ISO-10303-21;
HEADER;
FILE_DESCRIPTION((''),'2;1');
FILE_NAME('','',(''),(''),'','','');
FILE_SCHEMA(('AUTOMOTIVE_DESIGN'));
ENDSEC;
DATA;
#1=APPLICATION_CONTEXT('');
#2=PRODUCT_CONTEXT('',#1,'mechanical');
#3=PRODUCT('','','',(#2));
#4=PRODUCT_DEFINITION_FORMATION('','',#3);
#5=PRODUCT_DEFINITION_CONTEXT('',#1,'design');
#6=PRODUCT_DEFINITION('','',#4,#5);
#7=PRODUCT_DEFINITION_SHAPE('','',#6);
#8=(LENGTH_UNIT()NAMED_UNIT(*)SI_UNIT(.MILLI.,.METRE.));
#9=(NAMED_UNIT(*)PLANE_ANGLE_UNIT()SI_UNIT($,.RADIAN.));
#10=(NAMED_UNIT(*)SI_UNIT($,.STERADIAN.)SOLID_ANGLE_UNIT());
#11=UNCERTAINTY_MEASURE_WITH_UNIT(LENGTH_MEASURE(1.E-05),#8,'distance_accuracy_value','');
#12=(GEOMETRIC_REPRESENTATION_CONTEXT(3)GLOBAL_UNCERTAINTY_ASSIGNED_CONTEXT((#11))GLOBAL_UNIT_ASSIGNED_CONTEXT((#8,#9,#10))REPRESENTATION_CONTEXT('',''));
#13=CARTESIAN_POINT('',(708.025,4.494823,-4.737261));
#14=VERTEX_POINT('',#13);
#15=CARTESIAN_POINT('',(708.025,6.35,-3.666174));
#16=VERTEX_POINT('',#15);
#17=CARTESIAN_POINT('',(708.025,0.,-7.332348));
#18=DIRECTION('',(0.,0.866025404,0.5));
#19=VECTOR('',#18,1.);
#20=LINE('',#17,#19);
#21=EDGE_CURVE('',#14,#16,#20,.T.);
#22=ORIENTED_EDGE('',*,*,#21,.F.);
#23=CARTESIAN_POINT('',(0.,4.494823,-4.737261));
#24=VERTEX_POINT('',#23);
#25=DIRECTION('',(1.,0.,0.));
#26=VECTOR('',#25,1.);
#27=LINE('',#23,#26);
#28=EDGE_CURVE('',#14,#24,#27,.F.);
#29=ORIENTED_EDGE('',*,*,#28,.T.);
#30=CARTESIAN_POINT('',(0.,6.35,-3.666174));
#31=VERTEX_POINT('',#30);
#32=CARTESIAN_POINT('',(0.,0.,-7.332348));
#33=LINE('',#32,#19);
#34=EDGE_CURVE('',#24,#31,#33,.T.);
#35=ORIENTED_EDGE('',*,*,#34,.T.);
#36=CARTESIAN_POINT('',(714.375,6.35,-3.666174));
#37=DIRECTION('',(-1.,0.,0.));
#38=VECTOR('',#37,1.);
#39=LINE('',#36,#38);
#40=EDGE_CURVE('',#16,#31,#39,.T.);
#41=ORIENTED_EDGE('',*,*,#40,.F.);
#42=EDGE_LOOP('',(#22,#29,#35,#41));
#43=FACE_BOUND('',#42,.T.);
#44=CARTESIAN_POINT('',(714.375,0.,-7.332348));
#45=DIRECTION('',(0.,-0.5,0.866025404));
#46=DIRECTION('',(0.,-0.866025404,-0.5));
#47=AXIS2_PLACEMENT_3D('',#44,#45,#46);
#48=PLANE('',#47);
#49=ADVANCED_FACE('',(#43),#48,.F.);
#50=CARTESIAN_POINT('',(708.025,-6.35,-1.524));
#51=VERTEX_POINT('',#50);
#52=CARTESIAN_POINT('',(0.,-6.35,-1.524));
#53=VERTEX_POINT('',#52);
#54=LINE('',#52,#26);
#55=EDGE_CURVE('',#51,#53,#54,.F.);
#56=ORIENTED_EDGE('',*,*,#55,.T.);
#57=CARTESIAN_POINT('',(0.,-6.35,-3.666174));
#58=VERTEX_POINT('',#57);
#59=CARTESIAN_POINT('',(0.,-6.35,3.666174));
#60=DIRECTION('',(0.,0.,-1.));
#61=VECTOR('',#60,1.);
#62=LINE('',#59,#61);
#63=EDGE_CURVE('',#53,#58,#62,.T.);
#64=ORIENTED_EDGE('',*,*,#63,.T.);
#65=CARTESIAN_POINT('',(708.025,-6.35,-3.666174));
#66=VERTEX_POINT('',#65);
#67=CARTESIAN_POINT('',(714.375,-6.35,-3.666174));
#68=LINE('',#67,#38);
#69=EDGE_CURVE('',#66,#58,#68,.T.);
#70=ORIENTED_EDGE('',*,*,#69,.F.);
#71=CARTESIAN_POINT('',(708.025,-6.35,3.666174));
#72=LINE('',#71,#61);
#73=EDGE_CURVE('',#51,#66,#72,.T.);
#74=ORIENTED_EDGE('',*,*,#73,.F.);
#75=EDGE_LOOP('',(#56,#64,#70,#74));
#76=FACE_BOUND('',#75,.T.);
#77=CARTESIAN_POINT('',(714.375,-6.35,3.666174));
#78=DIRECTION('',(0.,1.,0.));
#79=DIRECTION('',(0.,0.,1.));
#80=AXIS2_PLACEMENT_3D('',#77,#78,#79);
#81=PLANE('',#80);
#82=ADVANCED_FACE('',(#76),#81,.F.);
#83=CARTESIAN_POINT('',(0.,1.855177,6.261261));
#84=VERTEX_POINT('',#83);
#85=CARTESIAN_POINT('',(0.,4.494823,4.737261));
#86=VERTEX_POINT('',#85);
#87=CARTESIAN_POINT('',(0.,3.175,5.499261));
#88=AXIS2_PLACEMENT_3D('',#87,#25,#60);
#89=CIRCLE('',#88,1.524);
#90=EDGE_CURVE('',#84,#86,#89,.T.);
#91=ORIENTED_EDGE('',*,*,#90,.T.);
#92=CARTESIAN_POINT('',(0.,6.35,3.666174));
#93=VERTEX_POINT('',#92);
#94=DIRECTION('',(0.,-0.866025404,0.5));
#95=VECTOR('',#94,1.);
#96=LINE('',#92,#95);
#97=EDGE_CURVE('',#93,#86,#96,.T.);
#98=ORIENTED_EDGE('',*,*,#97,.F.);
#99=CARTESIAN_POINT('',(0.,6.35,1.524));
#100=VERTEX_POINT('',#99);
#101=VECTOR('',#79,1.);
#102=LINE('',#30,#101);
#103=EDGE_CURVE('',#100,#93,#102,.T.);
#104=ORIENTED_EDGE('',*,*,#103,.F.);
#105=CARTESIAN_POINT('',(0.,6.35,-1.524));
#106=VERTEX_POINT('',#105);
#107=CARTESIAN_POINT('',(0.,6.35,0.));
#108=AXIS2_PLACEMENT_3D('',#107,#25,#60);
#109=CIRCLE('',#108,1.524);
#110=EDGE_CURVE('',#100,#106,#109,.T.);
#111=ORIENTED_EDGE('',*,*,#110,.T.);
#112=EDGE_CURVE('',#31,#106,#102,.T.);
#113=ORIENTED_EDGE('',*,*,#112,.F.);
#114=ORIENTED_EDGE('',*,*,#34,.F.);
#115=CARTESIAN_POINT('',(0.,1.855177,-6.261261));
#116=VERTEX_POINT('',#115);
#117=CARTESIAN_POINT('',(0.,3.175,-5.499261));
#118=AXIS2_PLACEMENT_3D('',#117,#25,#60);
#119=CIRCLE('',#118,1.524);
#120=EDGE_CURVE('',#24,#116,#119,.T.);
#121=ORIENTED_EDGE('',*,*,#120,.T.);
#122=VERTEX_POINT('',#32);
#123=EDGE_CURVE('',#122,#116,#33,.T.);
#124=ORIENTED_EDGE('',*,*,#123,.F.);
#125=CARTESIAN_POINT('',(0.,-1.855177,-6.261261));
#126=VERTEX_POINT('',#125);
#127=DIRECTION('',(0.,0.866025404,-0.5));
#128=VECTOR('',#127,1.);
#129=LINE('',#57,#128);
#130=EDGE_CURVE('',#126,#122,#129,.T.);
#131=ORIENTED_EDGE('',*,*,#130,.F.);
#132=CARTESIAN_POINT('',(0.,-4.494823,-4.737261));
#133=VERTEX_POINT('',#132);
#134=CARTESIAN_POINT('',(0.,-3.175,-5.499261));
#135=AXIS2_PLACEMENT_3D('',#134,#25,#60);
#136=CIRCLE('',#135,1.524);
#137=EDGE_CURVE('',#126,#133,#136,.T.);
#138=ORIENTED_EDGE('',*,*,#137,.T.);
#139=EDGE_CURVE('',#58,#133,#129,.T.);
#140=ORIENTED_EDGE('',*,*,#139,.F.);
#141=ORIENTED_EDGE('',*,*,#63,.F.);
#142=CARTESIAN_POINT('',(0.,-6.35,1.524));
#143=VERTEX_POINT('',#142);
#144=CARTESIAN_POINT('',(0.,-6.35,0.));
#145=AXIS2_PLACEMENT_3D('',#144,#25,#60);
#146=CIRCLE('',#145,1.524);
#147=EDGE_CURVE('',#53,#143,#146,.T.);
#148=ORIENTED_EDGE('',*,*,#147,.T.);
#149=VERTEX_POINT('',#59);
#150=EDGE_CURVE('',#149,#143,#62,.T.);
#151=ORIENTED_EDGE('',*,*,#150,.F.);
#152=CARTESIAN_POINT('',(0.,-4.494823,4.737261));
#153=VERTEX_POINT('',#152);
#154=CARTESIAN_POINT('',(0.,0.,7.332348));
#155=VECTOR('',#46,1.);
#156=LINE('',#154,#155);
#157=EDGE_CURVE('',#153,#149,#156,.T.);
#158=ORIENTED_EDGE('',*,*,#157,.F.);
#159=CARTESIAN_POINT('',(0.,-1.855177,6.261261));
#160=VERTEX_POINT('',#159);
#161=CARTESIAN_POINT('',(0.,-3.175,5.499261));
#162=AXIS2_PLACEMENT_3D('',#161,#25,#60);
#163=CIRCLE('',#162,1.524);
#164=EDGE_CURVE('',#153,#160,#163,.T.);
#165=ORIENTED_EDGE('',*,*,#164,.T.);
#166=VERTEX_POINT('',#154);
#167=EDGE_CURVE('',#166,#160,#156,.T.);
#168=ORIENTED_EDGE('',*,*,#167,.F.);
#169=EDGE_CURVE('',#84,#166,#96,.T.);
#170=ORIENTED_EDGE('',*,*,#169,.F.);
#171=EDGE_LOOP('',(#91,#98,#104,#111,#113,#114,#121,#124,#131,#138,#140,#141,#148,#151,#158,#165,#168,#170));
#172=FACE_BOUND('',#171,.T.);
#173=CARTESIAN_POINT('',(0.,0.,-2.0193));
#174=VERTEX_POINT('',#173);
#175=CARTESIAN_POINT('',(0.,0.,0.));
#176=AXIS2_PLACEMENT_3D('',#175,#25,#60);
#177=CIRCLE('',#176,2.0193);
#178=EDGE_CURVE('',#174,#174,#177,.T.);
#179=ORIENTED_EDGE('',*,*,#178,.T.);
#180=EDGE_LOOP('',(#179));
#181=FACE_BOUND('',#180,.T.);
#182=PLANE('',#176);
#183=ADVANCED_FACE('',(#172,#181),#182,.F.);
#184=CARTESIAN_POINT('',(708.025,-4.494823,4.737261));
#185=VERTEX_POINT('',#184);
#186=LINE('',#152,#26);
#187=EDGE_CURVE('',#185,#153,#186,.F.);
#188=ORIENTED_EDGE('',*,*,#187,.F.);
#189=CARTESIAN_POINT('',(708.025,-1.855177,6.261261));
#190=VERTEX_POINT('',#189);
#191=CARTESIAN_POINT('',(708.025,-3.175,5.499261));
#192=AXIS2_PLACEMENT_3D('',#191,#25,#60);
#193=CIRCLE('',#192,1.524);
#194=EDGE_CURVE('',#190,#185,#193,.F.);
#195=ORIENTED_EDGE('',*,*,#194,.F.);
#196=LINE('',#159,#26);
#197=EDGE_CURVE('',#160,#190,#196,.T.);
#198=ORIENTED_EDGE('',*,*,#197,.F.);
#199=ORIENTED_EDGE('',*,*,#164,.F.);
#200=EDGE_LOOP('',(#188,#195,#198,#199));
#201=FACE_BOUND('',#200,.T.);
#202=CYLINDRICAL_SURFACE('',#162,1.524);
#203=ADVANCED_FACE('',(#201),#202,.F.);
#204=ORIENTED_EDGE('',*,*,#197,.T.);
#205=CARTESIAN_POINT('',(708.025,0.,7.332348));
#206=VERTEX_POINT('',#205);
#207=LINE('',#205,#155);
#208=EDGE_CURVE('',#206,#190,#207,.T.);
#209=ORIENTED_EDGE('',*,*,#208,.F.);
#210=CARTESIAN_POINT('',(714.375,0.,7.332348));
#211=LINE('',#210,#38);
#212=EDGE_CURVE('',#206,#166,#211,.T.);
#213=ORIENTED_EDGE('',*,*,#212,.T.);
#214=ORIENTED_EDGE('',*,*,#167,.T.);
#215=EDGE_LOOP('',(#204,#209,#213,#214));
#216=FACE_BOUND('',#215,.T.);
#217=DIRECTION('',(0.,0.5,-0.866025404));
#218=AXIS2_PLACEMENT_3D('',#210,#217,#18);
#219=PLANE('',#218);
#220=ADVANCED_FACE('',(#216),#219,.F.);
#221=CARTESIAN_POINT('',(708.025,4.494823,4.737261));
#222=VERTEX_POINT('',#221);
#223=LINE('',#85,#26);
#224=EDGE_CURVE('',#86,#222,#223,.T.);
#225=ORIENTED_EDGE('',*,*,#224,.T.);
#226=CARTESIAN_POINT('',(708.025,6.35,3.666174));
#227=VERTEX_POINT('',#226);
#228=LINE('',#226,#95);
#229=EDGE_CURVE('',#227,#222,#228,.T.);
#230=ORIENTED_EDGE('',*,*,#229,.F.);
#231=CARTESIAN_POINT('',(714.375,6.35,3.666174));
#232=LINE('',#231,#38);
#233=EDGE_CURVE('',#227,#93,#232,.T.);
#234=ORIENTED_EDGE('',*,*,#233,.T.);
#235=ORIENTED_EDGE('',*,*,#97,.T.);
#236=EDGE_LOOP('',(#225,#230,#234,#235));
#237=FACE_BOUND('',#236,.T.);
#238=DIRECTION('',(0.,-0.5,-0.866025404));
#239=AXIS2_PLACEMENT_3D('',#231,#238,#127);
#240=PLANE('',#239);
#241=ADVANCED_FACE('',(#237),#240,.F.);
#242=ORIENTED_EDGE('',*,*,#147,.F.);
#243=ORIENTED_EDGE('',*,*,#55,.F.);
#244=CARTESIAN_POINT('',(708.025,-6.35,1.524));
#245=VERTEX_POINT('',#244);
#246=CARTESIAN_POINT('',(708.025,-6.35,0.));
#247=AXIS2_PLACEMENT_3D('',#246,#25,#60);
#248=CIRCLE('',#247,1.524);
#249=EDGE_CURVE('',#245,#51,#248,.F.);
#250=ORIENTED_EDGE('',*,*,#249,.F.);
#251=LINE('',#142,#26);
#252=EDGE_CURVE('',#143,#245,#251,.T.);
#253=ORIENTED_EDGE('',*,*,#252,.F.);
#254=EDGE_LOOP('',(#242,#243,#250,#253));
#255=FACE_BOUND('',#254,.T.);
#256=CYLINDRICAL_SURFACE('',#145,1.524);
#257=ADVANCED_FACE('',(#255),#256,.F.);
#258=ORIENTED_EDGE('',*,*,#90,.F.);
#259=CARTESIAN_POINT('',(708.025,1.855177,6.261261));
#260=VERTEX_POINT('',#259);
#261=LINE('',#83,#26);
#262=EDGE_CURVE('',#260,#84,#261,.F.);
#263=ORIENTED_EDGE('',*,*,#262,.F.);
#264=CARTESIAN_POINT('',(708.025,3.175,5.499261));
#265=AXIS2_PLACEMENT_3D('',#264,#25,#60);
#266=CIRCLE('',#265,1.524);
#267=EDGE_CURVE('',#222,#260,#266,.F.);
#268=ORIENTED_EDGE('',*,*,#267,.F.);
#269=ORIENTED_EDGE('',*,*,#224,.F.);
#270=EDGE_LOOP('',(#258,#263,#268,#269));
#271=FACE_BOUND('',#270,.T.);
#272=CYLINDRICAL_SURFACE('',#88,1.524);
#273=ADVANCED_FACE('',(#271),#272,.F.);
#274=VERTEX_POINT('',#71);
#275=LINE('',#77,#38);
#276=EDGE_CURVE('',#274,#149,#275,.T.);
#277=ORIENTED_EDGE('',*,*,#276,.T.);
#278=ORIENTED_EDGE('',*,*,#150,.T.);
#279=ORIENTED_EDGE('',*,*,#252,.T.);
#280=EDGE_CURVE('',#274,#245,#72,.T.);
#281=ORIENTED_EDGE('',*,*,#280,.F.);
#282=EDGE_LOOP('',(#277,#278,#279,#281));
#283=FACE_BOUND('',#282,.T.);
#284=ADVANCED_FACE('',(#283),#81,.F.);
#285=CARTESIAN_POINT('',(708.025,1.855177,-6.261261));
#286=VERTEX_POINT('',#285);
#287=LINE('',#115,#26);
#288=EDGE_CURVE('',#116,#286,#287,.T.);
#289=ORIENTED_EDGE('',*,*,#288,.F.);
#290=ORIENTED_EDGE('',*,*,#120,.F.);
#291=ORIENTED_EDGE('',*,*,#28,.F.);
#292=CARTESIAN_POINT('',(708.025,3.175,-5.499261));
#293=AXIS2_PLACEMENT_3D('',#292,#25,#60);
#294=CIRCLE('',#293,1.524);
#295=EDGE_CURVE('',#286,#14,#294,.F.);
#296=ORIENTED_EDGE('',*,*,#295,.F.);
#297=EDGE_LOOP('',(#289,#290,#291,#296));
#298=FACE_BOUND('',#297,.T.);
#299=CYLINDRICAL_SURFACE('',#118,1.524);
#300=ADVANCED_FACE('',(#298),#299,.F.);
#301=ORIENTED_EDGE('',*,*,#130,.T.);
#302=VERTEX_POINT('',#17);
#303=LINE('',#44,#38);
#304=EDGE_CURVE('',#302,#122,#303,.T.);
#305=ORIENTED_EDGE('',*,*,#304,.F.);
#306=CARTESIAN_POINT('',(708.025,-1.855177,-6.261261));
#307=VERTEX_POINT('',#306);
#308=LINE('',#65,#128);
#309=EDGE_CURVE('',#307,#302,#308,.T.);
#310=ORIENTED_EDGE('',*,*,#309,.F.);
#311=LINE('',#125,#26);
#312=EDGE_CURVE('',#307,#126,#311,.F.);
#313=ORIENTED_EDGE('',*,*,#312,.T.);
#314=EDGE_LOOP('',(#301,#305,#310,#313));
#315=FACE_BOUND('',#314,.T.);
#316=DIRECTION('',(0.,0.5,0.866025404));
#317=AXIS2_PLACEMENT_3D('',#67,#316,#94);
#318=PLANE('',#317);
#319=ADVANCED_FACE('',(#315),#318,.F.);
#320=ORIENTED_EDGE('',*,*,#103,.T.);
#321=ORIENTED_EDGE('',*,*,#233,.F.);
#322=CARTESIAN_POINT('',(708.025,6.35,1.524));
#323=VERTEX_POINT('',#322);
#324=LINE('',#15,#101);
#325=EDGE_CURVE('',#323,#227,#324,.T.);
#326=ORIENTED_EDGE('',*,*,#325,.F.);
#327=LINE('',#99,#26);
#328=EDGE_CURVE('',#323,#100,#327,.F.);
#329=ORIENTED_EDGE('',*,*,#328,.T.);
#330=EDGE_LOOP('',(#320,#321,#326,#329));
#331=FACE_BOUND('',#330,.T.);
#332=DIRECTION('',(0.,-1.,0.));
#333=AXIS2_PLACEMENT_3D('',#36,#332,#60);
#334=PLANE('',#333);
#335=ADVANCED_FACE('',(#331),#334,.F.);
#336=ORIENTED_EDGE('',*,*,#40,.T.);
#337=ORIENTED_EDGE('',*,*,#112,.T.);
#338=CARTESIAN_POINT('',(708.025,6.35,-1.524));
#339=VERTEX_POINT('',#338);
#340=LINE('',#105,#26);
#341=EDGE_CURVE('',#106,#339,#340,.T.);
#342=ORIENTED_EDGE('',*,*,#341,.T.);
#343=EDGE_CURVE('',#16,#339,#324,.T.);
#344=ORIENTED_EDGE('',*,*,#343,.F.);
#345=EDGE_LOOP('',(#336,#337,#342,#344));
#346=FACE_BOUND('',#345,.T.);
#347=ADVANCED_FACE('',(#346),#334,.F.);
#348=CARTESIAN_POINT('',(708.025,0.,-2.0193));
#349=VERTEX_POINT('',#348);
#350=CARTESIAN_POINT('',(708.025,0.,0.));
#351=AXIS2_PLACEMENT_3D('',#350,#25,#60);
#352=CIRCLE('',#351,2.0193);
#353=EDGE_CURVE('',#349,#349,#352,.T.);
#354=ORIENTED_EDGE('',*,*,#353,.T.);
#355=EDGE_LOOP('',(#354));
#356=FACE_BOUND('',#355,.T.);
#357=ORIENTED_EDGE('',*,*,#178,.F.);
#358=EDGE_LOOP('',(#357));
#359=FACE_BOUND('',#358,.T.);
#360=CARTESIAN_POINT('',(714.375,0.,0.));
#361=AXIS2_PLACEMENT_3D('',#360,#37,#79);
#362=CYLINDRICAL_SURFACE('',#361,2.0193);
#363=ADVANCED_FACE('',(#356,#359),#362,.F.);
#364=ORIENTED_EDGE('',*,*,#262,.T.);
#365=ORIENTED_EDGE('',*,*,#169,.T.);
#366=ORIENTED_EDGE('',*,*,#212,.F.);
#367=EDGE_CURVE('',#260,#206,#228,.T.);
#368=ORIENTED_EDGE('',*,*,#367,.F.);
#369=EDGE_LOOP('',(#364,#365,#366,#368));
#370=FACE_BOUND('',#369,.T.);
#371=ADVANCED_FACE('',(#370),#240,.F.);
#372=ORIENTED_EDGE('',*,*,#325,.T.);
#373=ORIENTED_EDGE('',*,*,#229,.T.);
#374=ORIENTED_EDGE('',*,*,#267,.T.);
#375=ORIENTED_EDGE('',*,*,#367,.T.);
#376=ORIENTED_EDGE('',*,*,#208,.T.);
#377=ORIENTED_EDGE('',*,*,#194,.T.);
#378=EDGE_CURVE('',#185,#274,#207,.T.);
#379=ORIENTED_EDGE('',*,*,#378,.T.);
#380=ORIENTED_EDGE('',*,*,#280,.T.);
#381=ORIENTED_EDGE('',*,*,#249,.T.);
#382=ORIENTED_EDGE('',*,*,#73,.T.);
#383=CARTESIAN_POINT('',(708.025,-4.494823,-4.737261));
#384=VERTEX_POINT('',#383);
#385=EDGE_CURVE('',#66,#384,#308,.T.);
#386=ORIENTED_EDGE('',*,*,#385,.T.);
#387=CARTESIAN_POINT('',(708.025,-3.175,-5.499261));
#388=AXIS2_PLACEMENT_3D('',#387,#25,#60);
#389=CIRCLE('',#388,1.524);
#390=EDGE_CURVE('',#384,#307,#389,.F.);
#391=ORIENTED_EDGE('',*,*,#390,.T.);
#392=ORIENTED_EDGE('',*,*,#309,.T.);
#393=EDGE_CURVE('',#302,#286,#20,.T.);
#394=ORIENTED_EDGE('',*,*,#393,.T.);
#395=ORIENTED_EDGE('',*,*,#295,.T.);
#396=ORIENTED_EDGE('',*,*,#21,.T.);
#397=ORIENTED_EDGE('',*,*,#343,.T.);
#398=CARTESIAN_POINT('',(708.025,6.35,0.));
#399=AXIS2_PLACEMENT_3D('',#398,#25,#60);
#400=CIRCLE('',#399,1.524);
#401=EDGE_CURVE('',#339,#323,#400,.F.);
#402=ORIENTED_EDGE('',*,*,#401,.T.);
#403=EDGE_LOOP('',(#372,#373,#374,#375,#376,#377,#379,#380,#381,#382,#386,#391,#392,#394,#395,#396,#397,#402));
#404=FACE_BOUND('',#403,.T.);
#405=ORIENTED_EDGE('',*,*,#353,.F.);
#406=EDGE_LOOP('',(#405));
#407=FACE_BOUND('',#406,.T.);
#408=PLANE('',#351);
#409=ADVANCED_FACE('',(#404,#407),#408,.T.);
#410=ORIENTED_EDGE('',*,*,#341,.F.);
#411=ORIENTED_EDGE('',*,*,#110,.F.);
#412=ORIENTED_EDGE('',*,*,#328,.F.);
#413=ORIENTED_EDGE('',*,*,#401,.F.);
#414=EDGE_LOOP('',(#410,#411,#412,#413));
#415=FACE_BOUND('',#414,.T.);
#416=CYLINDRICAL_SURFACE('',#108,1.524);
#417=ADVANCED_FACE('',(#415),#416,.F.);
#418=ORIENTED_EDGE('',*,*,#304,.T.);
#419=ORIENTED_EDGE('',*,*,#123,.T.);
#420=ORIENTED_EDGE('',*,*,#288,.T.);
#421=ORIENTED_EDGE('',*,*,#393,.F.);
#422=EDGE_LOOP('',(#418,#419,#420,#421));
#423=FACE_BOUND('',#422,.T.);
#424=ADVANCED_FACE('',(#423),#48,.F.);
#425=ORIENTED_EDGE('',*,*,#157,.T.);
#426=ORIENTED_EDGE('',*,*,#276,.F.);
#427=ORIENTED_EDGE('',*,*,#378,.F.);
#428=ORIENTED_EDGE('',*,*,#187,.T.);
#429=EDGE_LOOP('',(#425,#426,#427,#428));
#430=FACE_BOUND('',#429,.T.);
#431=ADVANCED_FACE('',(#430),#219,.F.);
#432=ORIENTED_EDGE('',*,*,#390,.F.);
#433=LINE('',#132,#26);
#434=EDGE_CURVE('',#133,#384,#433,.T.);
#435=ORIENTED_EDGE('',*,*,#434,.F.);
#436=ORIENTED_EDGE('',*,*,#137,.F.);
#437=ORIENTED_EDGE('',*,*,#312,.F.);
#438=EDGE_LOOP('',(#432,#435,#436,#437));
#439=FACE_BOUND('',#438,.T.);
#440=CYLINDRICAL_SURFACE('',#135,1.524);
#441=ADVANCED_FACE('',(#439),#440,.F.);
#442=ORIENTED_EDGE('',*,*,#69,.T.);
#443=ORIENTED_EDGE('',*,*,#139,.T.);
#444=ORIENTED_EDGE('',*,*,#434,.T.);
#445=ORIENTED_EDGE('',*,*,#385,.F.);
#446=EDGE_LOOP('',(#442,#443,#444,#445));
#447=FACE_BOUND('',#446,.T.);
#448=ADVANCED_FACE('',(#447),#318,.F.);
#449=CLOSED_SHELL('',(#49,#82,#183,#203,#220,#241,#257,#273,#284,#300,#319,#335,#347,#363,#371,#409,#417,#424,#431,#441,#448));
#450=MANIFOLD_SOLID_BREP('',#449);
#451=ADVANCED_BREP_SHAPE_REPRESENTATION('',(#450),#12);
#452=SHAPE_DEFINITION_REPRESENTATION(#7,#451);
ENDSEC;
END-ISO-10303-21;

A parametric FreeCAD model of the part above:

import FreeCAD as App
import Part
import Sketcher
Q = App.Units.Quantity

doc = App.newDocument("Part")
body = doc.addObject("PartDesign::Body", "Body")

sketch1 = doc.addObject("Sketcher::SketchObject", "Sketch")
body.addObject(sketch1)
sketch1.AttachmentSupport = (doc.YZ_Plane, [""])
sketch1.MapMode = "FlatFace"
sketch1.addGeometry([
    Part.LineSegment(App.Vector(0, -7.3, 0), App.Vector(6.3, -3.7, 0)),
    Part.LineSegment(App.Vector(6.3, -3.7, 0), App.Vector(6.3, 3.7, 0)),
    Part.LineSegment(App.Vector(6.3, 3.7, 0), App.Vector(0, 7.3, 0)),
    Part.LineSegment(App.Vector(0, 7.3, 0), App.Vector(-6.3, 3.7, 0)),
    Part.LineSegment(App.Vector(-6.3, 3.7, 0), App.Vector(-6.3, -3.7, 0)),
    Part.LineSegment(App.Vector(-6.3, -3.7, 0), App.Vector(0, -7.3, 0)),
    Part.Circle(App.Vector(0, 0, 0), App.Vector(0, 0, 1), 2),
], False)
sketch1.addConstraint([
    Sketcher.Constraint("Coincident", 0, 2, 1, 1),
    Sketcher.Constraint("Coincident", 1, 2, 2, 1),
    Sketcher.Constraint("Coincident", 2, 2, 3, 1),
    Sketcher.Constraint("Coincident", 3, 2, 4, 1),
    Sketcher.Constraint("Coincident", 4, 2, 5, 1),
    Sketcher.Constraint("Coincident", 5, 2, 0, 1),
    Sketcher.Constraint("Vertical", 1),
    Sketcher.Constraint("Vertical", 4),
    Sketcher.Constraint("Coincident", 6, 3, -1, 1),
    Sketcher.Constraint("Symmetric", 0, 2, 3, 2, -1, 1),
    Sketcher.Constraint("Symmetric", 2, 2, 5, 2, -1, 1),
    Sketcher.Constraint("PointOnObject", 2, 2, -2),
    Sketcher.Constraint("Parallel", 2, 5),
    Sketcher.Constraint("Horizontal", 1, 2, 3, 2),
    Sketcher.Constraint("Diameter", 6, Q("0.159 in")),
    Sketcher.Constraint("Angle", 0, Q("30 deg")),
    Sketcher.Constraint("DistanceX", 3, 2, 1, 2, Q("0.5 in")),
    Sketcher.Constraint("DistanceY", 1, 1, 1, 2, 7.332348),
])
pad1 = doc.addObject("PartDesign::Pad", "Pad")
body.addObject(pad1)
pad1.Profile = sketch1
pad1.Length = Q("28.125 in")

sketch2 = doc.addObject("Sketcher::SketchObject", "Sketch001")
body.addObject(sketch2)
sketch2.AttachmentSupport = (doc.YZ_Plane, [""])
sketch2.MapMode = "FlatFace"
sketch2.AttachmentOffset = App.Placement(App.Vector(0, 0, 28.125 * 25.4), App.Rotation())
sketch2.addGeometry([
    Part.Circle(App.Vector(6.3, 0, 0), App.Vector(0, 0, 1), 1.5),
    Part.Circle(App.Vector(3.2, -5.5, 0), App.Vector(0, 0, 1), 1.5),
    Part.Circle(App.Vector(-3.2, -5.5, 0), App.Vector(0, 0, 1), 1.5),
    Part.Circle(App.Vector(-6.3, 0, 0), App.Vector(0, 0, 1), 1.5),
    Part.Circle(App.Vector(-3.2, 5.5, 0), App.Vector(0, 0, 1), 1.5),
    Part.Circle(App.Vector(3.2, 5.5, 0), App.Vector(0, 0, 1), 1.5),
], False)
sketch2.addConstraint([
    Sketcher.Constraint("Equal", 0, 1),
    Sketcher.Constraint("Equal", 1, 2),
    Sketcher.Constraint("Equal", 2, 3),
    Sketcher.Constraint("Equal", 3, 4),
    Sketcher.Constraint("Equal", 4, 5),
    Sketcher.Constraint("Symmetric", 0, 3, 3, 3, -1, 1),
    Sketcher.Constraint("Symmetric", 1, 3, 4, 3, -1, 1),
    Sketcher.Constraint("Symmetric", 2, 3, 5, 3, -1, 1),
    Sketcher.Constraint("Symmetric", 1, 3, 2, 3, -2),
    Sketcher.Constraint("PointOnObject", 0, 3, -1),
    Sketcher.Constraint("Diameter", 0, Q("0.12 in")),
    Sketcher.Constraint("DistanceX", 3, 3, 0, 3, Q("0.5 in")),
    Sketcher.Constraint("DistanceX", 2, 3, 1, 3, Q("0.25 in")),
    Sketcher.Constraint("DistanceY", 1, 3, -1, 1, 5.499261),
])
pocket1 = doc.addObject("PartDesign::Pocket", "Pocket")
body.addObject(pocket1)
pocket1.Profile = sketch2
pocket1.Type = "ThroughAll"

sketch3 = doc.addObject("Sketcher::SketchObject", "Sketch002")
body.addObject(sketch3)
sketch3.AttachmentSupport = (doc.YZ_Plane, [""])
sketch3.MapMode = "FlatFace"
sketch3.AttachmentOffset = App.Placement(App.Vector(0, 0, 28.125 * 25.4), App.Rotation())
sketch3.addGeometry(Part.Circle(App.Vector(0, 0, 0), App.Vector(0, 0, 1), 21), False)
sketch3.addConstraint([
    Sketcher.Constraint("Coincident", 0, 3, -1, 1),
    Sketcher.Constraint("Diameter", 0, 42.511992),
])
pocket2 = doc.addObject("PartDesign::Pocket", "Pocket001")
body.addObject(pocket2)
pocket2.Profile = sketch3
pocket2.Length = Q("0.25 in")

doc.recompute()
